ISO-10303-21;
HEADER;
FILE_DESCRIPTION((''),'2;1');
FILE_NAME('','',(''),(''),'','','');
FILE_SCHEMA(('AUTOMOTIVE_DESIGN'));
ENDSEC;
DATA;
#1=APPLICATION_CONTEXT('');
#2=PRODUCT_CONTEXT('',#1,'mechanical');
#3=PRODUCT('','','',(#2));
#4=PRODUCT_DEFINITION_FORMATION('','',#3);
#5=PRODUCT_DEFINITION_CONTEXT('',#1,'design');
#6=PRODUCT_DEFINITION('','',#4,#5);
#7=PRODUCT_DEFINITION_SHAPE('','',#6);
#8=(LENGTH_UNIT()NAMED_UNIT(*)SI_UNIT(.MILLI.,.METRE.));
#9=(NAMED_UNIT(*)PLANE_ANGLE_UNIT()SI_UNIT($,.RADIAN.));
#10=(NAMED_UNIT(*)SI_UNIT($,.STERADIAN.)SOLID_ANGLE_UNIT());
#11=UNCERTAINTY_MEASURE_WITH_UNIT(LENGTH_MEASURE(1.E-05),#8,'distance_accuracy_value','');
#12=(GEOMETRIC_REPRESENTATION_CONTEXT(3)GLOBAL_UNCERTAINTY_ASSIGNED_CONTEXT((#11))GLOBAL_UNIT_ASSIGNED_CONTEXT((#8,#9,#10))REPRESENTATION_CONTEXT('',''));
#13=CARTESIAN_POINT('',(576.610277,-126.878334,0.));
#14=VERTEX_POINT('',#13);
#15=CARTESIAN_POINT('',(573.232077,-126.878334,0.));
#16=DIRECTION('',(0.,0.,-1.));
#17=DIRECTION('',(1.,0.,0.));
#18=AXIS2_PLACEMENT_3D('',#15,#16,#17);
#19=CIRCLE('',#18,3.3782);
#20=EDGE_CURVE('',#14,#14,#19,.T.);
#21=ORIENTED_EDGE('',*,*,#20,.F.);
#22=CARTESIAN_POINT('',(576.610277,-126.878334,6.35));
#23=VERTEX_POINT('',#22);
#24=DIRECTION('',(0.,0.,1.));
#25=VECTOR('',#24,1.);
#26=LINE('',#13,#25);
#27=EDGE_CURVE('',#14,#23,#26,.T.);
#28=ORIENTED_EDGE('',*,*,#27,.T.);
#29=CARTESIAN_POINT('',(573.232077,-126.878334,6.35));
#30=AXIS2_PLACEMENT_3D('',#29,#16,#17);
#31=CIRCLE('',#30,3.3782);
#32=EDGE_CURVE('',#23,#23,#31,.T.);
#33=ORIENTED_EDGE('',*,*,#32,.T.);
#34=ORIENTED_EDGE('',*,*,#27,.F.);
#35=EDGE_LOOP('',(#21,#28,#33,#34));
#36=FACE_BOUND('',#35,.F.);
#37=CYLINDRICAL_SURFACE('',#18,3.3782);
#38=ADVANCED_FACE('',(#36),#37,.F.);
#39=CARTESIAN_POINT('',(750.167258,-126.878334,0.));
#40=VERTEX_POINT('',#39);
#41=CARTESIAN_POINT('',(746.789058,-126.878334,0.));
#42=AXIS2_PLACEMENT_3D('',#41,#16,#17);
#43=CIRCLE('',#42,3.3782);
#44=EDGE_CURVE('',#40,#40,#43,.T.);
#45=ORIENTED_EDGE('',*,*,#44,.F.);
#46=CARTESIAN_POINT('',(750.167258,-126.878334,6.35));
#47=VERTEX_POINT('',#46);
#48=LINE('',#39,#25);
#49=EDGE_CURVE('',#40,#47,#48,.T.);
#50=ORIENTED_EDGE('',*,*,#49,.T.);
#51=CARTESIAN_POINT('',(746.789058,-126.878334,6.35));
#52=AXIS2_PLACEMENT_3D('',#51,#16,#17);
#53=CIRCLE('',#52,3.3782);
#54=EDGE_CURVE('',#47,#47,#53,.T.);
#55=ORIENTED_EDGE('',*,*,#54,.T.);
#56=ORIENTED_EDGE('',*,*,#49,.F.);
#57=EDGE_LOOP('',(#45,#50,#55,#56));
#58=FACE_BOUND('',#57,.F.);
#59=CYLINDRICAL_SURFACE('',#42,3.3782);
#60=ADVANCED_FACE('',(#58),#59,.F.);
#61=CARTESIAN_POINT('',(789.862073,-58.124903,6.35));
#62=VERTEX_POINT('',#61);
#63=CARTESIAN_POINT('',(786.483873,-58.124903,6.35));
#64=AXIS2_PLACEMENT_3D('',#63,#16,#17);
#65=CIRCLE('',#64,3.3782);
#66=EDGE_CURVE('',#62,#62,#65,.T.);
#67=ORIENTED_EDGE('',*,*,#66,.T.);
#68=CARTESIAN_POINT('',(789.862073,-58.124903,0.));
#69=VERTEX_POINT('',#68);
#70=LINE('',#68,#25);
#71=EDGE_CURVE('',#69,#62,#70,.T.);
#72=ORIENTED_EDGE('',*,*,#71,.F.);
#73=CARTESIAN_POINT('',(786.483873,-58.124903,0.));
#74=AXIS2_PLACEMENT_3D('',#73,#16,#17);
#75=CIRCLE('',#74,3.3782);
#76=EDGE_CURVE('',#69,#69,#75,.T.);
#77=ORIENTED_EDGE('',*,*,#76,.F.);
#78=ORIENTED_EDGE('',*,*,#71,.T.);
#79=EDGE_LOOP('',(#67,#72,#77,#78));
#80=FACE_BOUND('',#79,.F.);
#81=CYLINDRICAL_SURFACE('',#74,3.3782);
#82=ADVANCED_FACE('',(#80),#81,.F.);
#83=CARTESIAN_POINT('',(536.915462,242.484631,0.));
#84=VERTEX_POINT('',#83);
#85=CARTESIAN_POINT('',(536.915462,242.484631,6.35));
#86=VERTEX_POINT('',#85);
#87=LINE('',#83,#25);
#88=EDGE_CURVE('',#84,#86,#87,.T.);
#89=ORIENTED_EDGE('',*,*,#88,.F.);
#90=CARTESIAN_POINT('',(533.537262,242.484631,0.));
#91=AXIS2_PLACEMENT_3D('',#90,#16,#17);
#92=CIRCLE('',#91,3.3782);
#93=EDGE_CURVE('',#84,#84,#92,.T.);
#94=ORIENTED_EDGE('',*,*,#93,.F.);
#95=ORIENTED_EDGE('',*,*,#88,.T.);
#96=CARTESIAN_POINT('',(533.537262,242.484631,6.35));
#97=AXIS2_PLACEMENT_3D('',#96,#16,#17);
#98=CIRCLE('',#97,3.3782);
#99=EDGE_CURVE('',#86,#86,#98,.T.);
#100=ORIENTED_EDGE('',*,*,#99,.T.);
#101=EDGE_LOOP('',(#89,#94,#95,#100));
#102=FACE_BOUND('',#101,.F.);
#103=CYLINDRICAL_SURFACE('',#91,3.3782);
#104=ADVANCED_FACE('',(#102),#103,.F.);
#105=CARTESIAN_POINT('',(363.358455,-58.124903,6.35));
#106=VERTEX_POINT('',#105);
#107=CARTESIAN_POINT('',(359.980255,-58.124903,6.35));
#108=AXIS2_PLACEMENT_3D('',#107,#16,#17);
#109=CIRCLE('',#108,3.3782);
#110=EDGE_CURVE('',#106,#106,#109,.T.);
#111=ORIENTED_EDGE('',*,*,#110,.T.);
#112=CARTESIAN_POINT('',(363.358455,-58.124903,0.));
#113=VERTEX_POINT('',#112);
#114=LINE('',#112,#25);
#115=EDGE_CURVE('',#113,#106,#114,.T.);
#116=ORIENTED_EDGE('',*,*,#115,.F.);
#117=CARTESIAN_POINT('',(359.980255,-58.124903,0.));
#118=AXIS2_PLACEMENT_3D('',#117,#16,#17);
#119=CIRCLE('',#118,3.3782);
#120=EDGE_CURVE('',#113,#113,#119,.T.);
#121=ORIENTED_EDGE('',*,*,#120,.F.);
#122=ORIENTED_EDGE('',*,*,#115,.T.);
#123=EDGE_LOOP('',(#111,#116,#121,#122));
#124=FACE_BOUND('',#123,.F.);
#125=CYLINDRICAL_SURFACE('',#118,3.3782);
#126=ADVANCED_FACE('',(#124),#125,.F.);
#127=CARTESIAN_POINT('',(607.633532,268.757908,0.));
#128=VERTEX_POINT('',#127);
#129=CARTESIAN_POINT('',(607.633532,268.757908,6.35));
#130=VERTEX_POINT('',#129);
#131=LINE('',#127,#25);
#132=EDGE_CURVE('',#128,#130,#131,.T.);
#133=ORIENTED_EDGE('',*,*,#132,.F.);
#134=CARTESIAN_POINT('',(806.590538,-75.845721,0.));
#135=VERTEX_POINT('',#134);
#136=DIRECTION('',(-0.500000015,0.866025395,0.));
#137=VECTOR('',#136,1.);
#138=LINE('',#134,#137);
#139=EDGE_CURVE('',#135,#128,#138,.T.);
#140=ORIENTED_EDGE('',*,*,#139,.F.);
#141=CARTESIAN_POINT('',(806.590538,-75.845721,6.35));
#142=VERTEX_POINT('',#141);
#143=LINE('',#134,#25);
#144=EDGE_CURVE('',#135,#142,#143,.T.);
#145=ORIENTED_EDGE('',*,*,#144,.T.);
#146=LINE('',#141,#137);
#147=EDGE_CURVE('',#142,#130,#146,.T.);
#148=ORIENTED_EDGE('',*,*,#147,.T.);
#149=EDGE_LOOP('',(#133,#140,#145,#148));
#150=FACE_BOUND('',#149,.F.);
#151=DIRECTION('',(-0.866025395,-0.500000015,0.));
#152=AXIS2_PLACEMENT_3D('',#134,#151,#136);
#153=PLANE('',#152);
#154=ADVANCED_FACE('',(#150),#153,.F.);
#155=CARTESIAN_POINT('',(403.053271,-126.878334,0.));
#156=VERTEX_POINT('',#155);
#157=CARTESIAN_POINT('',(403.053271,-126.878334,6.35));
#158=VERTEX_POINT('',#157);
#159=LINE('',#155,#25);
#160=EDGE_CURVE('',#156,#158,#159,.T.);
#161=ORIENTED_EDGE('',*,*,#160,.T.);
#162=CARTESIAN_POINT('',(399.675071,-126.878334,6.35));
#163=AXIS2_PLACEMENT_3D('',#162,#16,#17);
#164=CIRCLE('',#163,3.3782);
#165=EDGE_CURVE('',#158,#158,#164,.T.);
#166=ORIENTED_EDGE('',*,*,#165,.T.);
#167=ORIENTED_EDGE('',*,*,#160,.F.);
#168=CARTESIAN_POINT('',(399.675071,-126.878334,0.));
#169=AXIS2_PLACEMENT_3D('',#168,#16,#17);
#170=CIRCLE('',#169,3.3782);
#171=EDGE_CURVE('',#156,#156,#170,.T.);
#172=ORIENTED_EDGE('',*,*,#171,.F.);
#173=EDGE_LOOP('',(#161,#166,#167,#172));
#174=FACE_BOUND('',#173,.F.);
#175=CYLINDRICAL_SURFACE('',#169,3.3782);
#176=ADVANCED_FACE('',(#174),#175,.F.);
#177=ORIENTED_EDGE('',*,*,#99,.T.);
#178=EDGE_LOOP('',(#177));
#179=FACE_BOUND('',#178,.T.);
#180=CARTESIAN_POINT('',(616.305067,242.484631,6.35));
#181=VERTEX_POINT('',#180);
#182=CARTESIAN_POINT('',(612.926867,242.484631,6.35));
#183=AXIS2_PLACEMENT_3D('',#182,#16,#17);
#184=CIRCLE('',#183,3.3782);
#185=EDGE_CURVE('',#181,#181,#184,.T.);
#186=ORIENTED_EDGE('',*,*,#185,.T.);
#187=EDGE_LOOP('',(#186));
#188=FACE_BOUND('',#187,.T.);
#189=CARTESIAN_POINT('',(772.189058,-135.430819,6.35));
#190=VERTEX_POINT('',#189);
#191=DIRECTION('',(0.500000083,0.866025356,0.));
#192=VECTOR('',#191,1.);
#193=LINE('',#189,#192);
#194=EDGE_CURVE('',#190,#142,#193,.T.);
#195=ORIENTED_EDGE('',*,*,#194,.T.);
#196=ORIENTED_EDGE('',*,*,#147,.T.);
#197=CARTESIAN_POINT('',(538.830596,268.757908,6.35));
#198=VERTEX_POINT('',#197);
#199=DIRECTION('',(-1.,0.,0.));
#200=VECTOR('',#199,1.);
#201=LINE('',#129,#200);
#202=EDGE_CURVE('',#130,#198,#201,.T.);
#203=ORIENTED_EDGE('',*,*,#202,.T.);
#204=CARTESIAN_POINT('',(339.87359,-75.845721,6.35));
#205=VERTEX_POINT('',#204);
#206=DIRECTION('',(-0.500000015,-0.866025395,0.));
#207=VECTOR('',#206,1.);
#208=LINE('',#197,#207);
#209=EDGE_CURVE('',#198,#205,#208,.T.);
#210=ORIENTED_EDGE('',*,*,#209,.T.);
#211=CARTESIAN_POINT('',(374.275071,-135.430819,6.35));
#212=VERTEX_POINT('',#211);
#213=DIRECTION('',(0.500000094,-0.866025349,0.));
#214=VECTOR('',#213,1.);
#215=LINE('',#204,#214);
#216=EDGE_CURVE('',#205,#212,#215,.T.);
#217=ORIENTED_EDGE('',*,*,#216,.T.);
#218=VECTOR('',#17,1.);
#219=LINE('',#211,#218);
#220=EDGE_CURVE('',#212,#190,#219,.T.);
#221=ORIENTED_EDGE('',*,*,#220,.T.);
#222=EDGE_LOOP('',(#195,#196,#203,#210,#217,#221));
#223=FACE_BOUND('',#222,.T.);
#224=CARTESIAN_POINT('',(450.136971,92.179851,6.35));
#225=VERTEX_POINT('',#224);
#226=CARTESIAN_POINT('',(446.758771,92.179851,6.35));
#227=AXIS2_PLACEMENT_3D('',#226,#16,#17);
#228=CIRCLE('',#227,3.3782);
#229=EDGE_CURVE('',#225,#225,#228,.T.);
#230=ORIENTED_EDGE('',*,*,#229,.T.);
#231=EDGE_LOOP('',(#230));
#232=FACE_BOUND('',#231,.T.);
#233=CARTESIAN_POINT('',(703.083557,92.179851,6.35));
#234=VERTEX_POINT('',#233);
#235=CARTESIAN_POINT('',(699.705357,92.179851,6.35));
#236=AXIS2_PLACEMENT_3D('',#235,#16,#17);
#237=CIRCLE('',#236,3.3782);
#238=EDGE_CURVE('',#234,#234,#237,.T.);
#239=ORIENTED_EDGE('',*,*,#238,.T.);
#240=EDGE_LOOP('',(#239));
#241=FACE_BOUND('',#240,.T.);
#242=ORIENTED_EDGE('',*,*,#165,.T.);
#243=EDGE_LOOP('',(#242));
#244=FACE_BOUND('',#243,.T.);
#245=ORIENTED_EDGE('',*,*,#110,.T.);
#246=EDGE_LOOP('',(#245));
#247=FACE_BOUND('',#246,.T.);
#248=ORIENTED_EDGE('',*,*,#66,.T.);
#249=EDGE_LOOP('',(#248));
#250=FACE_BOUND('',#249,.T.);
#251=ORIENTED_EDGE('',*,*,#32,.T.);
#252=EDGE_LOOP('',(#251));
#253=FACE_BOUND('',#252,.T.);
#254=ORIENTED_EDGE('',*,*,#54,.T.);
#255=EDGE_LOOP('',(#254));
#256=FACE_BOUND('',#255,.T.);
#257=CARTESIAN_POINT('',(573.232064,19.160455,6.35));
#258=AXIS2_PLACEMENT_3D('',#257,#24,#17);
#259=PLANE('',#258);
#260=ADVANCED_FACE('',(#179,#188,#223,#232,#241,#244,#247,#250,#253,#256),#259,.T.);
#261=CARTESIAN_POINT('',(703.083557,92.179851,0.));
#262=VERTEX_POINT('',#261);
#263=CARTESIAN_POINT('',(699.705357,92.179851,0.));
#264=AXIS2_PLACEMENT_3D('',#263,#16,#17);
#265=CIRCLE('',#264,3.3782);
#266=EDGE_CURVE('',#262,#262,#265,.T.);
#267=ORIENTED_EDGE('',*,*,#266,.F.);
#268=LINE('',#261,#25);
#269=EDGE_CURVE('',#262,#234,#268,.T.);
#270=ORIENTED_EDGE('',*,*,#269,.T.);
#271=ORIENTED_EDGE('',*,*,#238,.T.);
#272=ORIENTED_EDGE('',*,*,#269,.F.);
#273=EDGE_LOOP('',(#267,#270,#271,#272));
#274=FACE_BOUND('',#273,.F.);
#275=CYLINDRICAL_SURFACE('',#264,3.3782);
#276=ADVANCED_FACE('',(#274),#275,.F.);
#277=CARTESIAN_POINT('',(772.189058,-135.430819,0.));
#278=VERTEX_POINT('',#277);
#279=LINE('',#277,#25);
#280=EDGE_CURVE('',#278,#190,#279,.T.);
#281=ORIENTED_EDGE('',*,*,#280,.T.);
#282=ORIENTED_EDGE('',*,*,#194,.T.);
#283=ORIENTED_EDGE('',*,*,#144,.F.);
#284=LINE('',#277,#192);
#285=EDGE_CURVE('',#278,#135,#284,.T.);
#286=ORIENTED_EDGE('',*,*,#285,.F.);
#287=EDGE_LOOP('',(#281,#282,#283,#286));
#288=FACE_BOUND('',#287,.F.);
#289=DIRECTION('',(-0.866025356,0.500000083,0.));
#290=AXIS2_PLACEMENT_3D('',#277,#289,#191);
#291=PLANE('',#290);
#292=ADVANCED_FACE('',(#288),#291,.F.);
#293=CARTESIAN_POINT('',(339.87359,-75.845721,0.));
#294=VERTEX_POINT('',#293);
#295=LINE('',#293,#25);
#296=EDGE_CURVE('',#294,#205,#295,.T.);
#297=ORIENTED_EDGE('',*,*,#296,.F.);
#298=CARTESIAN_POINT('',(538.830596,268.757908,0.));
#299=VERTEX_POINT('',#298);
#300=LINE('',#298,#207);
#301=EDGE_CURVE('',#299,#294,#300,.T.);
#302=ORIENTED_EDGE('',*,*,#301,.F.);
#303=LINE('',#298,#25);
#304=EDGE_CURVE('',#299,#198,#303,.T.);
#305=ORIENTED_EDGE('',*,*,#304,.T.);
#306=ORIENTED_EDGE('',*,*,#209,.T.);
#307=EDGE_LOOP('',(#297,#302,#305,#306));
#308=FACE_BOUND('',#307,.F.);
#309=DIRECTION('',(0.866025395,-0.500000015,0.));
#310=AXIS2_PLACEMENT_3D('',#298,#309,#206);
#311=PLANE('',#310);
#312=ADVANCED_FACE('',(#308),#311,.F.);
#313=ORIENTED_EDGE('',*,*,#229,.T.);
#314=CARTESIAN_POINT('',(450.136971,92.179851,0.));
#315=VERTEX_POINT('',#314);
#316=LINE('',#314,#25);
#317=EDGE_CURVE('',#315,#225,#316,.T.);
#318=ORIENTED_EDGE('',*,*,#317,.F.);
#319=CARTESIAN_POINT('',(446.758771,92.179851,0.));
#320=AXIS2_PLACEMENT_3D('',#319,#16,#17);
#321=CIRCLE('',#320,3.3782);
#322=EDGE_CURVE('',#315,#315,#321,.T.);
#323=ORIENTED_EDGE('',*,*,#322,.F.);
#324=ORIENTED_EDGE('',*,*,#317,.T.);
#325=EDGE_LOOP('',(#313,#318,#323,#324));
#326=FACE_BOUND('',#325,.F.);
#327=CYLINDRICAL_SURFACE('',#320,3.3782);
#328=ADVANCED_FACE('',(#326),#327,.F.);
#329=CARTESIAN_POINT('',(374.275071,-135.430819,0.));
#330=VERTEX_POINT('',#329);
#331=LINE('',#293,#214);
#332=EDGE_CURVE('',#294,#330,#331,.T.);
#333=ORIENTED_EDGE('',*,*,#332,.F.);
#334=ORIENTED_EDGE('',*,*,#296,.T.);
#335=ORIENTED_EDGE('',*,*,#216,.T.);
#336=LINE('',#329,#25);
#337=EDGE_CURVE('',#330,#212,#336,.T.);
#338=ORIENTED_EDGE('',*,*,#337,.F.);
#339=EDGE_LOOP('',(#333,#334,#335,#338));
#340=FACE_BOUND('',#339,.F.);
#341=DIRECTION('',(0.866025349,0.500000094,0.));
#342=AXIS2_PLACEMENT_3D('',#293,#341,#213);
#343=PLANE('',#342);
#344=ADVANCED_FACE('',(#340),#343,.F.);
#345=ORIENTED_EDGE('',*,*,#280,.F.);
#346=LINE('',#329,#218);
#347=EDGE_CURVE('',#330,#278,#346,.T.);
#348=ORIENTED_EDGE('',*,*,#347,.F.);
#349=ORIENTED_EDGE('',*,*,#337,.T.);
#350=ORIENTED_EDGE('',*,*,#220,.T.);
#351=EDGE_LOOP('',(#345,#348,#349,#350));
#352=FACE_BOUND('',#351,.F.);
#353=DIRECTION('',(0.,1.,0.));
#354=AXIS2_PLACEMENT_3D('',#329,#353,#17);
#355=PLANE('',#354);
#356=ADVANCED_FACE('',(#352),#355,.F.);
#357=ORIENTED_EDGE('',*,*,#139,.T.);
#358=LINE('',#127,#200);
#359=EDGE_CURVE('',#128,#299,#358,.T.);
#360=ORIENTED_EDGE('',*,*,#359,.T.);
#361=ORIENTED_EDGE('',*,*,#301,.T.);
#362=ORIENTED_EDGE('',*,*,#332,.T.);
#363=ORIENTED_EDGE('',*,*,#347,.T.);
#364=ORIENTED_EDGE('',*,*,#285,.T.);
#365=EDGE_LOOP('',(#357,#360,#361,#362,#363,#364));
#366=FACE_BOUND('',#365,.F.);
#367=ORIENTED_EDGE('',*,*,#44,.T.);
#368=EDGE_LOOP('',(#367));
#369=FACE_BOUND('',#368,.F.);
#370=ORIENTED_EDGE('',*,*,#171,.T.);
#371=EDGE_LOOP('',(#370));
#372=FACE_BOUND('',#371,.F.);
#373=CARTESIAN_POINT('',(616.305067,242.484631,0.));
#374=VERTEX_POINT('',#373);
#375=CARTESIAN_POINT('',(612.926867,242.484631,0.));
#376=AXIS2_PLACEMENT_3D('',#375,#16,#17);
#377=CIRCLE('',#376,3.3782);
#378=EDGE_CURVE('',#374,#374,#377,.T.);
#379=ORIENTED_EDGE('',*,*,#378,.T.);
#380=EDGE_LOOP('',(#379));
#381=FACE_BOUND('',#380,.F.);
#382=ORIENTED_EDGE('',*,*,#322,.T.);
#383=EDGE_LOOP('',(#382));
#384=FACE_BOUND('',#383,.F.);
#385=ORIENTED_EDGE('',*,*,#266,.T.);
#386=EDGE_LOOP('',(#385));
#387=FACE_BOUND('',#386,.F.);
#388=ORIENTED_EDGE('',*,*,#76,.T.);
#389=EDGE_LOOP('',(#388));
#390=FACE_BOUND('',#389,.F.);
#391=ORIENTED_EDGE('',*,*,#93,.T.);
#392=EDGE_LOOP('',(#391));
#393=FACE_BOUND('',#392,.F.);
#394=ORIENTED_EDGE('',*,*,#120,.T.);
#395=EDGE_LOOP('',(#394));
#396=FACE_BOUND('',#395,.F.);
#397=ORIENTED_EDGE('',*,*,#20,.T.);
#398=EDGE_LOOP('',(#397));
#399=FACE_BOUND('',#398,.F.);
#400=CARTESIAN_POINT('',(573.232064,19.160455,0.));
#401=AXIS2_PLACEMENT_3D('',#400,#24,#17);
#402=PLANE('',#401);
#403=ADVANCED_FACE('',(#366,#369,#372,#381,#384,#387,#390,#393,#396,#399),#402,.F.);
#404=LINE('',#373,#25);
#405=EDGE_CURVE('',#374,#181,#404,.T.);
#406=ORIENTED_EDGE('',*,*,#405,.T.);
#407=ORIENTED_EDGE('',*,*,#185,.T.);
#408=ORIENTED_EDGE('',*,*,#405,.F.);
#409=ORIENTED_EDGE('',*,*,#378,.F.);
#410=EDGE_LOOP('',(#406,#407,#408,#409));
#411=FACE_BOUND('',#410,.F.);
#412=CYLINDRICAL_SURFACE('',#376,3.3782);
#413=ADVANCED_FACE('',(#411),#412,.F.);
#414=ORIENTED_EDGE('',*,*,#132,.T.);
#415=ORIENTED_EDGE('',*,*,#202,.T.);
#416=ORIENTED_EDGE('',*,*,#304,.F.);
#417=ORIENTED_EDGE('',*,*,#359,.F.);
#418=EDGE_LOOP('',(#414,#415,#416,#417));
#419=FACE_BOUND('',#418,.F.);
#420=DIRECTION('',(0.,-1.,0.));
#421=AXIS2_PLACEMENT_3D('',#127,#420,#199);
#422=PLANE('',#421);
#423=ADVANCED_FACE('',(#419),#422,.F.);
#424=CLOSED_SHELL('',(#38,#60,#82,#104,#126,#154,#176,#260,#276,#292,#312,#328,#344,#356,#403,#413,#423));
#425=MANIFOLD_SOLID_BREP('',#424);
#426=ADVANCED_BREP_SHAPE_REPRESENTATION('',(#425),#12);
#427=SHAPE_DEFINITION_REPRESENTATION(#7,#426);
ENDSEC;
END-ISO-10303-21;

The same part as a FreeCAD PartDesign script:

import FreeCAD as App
import Part
import Sketcher
Q = App.Units.Quantity

doc = App.newDocument("Part")
body = doc.addObject("PartDesign::Body", "Body")

sketch1 = body.newObject("Sketcher::SketchObject", "Sketch")
sketch1.AttachmentSupport = (doc.getObject("XY_Plane"), [""])
sketch1.MapMode = "FlatFace"
sketch1.addGeometry([
    Part.LineSegment(App.Vector(538.8, 268.8, 0), App.Vector(339.9, -75.8, 0)),
    Part.LineSegment(App.Vector(339.9, -75.8, 0), App.Vector(374.3, -135.4, 0)),
    Part.LineSegment(App.Vector(374.3, -135.4, 0), App.Vector(772.2, -135.4, 0)),
    Part.LineSegment(App.Vector(772.2, -135.4, 0), App.Vector(806.6, -75.8, 0)),
    Part.LineSegment(App.Vector(806.6, -75.8, 0), App.Vector(607.6, 268.8, 0)),
    Part.LineSegment(App.Vector(607.6, 268.8, 0), App.Vector(538.8, 268.8, 0)),
    Part.Circle(App.Vector(399.7, -126.9, 0), App.Vector(0, 0, 1), 3.4),
    Part.Circle(App.Vector(360, -58.1, 0), App.Vector(0, 0, 1), 3.4),
    Part.Circle(App.Vector(573.2, -126.9, 0), App.Vector(0, 0, 1), 3.4),
    Part.Circle(App.Vector(746.8, -126.9, 0), App.Vector(0, 0, 1), 3.4),
    Part.Circle(App.Vector(786.5, -58.1, 0), App.Vector(0, 0, 1), 3.4),
    Part.Circle(App.Vector(446.8, 92.2, 0), App.Vector(0, 0, 1), 3.4),
    Part.Circle(App.Vector(533.5, 242.5, 0), App.Vector(0, 0, 1), 3.4),
    Part.Circle(App.Vector(699.7, 92.2, 0), App.Vector(0, 0, 1), 3.4),
    Part.Circle(App.Vector(612.9, 242.5, 0), App.Vector(0, 0, 1), 3.4),
], False)
sketch1.addConstraint([
    Sketcher.Constraint("Coincident", 0, 2, 1, 1),
    Sketcher.Constraint("Coincident", 1, 2, 2, 1),
    Sketcher.Constraint("Coincident", 2, 2, 3, 1),
    Sketcher.Constraint("Coincident", 3, 2, 4, 1),
    Sketcher.Constraint("Coincident", 4, 2, 5, 1),
    Sketcher.Constraint("Coincident", 5, 2, 0, 1),
    Sketcher.Constraint("Horizontal", 2),
    Sketcher.Constraint("Horizontal", 5),
    Sketcher.Constraint("Equal", 6, 7),
    Sketcher.Constraint("Equal", 7, 8),
    Sketcher.Constraint("Equal", 8, 9),
    Sketcher.Constraint("Equal", 9, 10),
    Sketcher.Constraint("Equal", 10, 11),
    Sketcher.Constraint("Equal", 11, 12),
    Sketcher.Constraint("Equal", 12, 13),
    Sketcher.Constraint("Equal", 13, 14),
    Sketcher.Constraint("Parallel", 0, 3),
    Sketcher.Constraint("Parallel", 1, 4),
    Sketcher.Constraint("Horizontal", 6, 3, 8, 3),
    Sketcher.Constraint("Horizontal", 8, 3, 9, 3),
    Sketcher.Constraint("Horizontal", 7, 3, 10, 3),
    Sketcher.Constraint("Horizontal", 11, 3, 13, 3),
    Sketcher.Constraint("Horizontal", 12, 3, 14, 3),
    Sketcher.Constraint("Horizontal", 0, 2, 3, 2),
    Sketcher.Constraint("Equal", 1, 3),
    Sketcher.Constraint("Diameter", 6, Q("0.266 in")),
    Sketcher.Constraint("Angle", 0, Q("-120.000001 deg")),
    Sketcher.Constraint("DistanceX", 1, 2, 6, 3, Q("1 in")),
    Sketcher.Constraint("DistanceX", 9, 3, 2, 2, Q("1 in")),
    Sketcher.Constraint("Distance", 0, Q("397.914 mm")),
    Sketcher.Constraint("DistanceX", 6, 3, 10, 3, Q("386.808802 mm")),
    Sketcher.Constraint("DistanceX", 6, 3, 11, 3, Q("47.0837 mm")),
    Sketcher.Constraint("DistanceX", 13, 3, 9, 3, Q("47.083701 mm")),
    Sketcher.Constraint("DistanceY", 1, 2, 0, 2, Q("59.585098 mm")),
    Sketcher.Constraint("DistanceX", 2, 1, 2, 2, Q("397.913987 mm")),
    Sketcher.Constraint("DistanceX", -1, 1, 6, 3, Q("399.675071 mm")),
    Sketcher.Constraint("DistanceY", -1, 1, 11, 3, Q("92.179851 mm")),
    Sketcher.Constraint("DistanceY", -1, 1, 12, 3, Q("242.484631 mm")),
    Sketcher.Constraint("DistanceY", 0, 2, -1, 1, Q("75.845721 mm")),
    Sketcher.Constraint("DistanceY", 6, 3, 7, 3, Q("68.753431 mm")),
    Sketcher.Constraint("DistanceX", 7, 3, 8, 3, Q("213.251822 mm")),
    Sketcher.Constraint("DistanceX", 8, 3, 9, 3, Q("173.556981 mm")),
    Sketcher.Constraint("DistanceX", 11, 3, 12, 3, Q("86.778491 mm")),
    Sketcher.Constraint("DistanceX", 14, 3, 13, 3, Q("86.77849 mm")),
    Sketcher.Constraint("DistanceY", 10, 3, 4, 2, Q("326.882811 mm")),
])
pad1 = body.newObject("PartDesign::Pad", "Pad")
pad1.Profile = sketch1
pad1.Length = Q("0.25 in")

doc.recompute()
